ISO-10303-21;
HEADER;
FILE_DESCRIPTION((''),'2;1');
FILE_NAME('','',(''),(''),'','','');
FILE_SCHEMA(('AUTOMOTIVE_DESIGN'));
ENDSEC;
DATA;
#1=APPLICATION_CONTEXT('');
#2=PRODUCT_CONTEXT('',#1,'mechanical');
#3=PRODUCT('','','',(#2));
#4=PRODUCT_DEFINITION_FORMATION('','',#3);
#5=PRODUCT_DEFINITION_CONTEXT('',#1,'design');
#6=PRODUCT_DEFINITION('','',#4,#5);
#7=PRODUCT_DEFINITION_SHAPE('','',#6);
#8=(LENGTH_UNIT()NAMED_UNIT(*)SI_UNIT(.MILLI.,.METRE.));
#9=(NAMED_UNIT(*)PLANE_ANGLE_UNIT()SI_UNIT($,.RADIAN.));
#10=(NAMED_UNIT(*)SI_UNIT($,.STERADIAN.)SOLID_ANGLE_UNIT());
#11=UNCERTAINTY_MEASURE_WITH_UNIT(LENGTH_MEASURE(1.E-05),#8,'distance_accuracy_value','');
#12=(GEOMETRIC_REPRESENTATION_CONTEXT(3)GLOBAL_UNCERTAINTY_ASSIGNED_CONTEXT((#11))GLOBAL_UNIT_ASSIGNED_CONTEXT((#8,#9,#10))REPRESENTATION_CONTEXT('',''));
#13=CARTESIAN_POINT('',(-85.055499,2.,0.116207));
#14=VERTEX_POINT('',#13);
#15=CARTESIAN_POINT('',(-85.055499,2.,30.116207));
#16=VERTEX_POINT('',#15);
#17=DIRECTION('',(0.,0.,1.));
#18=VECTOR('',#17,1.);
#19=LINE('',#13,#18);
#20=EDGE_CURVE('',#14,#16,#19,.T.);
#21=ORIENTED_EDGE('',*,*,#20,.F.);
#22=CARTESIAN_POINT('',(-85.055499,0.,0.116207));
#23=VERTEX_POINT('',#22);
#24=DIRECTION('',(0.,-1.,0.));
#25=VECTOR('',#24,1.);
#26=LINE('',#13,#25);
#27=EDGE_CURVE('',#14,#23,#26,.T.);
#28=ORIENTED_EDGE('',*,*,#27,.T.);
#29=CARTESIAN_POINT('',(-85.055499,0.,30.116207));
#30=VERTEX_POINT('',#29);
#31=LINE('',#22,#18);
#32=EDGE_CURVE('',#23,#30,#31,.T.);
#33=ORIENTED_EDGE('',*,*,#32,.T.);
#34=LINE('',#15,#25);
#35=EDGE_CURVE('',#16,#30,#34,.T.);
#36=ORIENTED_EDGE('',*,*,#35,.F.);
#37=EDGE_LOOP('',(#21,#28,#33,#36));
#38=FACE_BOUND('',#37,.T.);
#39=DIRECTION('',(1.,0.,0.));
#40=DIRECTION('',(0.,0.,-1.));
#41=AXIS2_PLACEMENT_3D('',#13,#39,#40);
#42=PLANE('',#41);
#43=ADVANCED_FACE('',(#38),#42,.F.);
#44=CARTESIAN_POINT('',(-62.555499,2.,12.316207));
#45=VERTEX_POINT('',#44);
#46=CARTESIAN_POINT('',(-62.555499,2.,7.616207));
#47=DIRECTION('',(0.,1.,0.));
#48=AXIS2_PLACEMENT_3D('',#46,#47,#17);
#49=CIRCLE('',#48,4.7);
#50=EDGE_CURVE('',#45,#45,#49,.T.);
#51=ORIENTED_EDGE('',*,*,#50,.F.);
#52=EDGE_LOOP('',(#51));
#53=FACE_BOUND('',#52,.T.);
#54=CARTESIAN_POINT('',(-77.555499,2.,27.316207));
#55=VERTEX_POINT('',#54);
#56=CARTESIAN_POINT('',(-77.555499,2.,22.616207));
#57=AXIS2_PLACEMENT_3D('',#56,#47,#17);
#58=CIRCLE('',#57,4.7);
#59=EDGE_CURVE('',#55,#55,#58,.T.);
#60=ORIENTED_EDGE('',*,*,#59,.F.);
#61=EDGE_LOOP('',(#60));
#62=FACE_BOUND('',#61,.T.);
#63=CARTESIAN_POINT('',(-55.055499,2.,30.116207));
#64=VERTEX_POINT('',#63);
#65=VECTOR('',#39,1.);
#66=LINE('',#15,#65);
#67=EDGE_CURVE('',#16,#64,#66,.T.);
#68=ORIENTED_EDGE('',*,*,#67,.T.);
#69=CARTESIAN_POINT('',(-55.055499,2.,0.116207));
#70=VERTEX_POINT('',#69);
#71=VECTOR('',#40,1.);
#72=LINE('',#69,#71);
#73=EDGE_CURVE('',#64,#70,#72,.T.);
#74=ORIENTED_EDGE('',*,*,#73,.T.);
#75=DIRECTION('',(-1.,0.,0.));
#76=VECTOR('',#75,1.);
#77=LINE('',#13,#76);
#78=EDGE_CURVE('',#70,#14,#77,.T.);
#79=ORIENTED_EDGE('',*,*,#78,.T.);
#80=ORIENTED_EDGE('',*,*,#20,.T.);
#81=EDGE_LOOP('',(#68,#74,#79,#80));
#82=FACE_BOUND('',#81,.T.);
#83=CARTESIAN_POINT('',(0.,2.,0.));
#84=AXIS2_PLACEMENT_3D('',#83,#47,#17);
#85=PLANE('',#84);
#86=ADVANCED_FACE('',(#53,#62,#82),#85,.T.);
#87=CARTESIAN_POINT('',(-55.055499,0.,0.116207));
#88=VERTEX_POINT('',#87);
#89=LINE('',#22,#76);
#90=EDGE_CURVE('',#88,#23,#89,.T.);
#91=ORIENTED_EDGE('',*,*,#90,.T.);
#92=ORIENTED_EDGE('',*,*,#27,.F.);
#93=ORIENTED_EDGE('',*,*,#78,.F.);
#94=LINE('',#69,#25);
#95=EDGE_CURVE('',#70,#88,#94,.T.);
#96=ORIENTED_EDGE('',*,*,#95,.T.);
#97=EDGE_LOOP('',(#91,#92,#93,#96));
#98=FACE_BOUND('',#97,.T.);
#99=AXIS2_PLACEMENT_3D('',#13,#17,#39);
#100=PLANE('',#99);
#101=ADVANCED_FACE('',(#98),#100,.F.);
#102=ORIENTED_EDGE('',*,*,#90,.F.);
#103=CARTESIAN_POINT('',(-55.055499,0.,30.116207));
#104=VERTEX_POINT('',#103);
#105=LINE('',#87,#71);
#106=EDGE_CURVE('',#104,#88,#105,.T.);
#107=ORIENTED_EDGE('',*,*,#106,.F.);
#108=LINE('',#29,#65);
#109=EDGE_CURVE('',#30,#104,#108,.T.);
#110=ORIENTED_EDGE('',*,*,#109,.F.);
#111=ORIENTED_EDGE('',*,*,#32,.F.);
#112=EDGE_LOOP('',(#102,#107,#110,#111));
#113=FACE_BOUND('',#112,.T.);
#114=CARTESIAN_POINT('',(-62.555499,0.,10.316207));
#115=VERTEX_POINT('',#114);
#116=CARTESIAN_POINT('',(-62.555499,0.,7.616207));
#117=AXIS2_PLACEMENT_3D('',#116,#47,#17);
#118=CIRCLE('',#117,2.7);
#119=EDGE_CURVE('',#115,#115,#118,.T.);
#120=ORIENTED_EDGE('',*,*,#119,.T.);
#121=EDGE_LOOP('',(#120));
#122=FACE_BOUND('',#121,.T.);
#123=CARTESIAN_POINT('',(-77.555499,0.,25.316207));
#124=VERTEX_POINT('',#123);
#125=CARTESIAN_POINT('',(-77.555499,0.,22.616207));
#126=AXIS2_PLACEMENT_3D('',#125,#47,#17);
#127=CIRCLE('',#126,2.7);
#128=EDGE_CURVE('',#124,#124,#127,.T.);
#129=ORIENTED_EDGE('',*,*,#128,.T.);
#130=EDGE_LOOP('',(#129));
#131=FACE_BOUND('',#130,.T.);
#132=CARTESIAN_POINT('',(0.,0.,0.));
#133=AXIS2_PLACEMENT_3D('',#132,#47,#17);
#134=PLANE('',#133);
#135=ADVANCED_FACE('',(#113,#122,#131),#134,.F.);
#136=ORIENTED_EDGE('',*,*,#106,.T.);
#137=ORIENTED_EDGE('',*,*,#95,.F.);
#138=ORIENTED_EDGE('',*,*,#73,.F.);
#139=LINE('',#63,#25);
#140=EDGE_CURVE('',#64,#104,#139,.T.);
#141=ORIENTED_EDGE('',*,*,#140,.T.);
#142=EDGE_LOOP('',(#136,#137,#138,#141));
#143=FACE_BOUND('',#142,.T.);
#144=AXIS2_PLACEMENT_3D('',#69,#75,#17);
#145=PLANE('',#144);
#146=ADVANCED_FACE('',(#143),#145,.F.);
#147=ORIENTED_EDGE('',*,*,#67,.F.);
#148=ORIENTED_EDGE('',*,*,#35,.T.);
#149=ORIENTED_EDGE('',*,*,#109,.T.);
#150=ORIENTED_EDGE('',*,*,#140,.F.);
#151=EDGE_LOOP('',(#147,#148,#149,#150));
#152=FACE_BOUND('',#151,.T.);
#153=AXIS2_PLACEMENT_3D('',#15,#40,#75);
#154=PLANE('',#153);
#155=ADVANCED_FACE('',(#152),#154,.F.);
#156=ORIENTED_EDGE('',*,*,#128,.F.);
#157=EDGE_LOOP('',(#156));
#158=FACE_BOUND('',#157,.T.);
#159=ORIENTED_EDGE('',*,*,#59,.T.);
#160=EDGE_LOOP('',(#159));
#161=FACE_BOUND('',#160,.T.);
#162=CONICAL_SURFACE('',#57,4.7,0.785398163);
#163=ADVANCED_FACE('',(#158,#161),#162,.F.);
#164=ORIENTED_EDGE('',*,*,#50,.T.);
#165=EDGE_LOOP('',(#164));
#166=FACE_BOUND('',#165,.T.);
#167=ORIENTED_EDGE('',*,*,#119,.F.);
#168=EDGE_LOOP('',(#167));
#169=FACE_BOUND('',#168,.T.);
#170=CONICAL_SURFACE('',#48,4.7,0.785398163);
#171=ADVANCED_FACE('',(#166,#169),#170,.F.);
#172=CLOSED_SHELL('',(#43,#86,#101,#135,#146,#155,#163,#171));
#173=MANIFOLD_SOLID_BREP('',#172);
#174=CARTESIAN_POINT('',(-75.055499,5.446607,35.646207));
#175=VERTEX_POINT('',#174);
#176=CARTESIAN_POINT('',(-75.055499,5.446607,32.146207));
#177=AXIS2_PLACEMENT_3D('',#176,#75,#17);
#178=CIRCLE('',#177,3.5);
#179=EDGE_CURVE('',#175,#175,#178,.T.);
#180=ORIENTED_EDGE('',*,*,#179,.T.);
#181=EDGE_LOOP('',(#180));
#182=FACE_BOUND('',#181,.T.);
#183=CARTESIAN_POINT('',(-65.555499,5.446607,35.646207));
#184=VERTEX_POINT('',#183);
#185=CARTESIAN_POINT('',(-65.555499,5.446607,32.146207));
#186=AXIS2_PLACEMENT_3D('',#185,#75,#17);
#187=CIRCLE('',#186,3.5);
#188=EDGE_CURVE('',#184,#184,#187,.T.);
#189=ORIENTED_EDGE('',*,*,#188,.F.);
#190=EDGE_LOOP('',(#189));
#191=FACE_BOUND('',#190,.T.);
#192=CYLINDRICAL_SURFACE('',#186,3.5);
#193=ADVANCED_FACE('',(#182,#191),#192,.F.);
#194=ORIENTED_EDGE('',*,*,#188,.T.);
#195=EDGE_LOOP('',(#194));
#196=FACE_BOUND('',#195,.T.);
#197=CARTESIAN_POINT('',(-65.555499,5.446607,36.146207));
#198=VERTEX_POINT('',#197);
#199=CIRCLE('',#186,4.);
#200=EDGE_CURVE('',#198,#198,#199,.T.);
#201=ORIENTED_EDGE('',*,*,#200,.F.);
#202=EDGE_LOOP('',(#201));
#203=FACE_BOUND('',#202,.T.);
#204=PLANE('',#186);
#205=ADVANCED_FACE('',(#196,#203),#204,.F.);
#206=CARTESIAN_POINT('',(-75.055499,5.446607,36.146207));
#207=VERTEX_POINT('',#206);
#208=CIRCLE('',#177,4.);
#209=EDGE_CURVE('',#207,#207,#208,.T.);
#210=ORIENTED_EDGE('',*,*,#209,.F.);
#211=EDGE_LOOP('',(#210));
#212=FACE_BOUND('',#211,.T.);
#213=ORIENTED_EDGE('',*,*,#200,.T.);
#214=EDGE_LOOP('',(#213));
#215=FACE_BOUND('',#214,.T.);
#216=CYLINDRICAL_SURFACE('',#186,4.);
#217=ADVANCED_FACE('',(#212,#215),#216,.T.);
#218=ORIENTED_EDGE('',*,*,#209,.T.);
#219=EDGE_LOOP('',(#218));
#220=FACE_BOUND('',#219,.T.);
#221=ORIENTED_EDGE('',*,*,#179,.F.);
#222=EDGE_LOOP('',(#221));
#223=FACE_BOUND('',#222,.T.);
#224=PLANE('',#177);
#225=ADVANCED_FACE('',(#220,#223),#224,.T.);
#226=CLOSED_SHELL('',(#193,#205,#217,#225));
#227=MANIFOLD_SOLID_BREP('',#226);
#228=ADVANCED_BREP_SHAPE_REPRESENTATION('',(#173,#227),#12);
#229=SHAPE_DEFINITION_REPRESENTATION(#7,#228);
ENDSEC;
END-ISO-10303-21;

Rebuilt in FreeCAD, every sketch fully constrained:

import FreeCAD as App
import Part
import Sketcher
from FreeCAD import Vector
Q = App.Units.Quantity

doc = App.newDocument("Part")
body = doc.addObject("PartDesign::Body", "Body")

sketch1 = body.newObject("Sketcher::SketchObject", "Sketch")
sketch1.AttachmentSupport = (doc.getObject("XZ_Plane"), [""])
sketch1.MapMode = "FlatFace"
sketch1.addGeometry(Part.LineSegment(Vector(-85.055499, 0.116207, 0), Vector(-85.055499, 30.116207, 0)), False)
sketch1.addGeometry(Part.LineSegment(Vector(-85.055499, 30.116207, 0), Vector(-55.055499, 30.116207, 0)), False)
sketch1.addGeometry(Part.LineSegment(Vector(-55.055499, 30.116207, 0), Vector(-55.055499, 0.116207, 0)), False)
sketch1.addGeometry(Part.LineSegment(Vector(-55.055499, 0.116207, 0), Vector(-85.055499, 0.116207, 0)), False)
sketch1.addConstraint(Sketcher.Constraint("Coincident", 0, 2, 1, 1))
sketch1.addConstraint(Sketcher.Constraint("Coincident", 1, 2, 2, 1))
sketch1.addConstraint(Sketcher.Constraint("Coincident", 2, 2, 3, 1))
sketch1.addConstraint(Sketcher.Constraint("Coincident", 3, 2, 0, 1))
sketch1.addConstraint(Sketcher.Constraint("Vertical", 0))
sketch1.addConstraint(Sketcher.Constraint("Horizontal", 1))
sketch1.addConstraint(Sketcher.Constraint("Vertical", 2))
sketch1.addConstraint(Sketcher.Constraint("Horizontal", 3))
sketch1.addConstraint(Sketcher.Constraint("Equal", 3, 0))
sketch1.addConstraint(Sketcher.Constraint("DistanceX", 1, 1, 1, 2, Q("30 mm")))
sketch1.addConstraint(Sketcher.Constraint("DistanceX", 0, 2, -1, 1, Q("85.055499 mm")))
sketch1.addConstraint(Sketcher.Constraint("DistanceY", -1, 1, 0, 2, Q("30.116207 mm")))
pad1 = body.newObject("PartDesign::Pad", "Pad")
pad1.Profile = sketch1
pad1.Length = 2
pad1.Reversed = True

sketch2 = body.newObject("Sketcher::SketchObject", "Sketch001")
sketch2.AttachmentSupport = (doc.getObject("YZ_Plane"), [""])
sketch2.MapMode = "FlatFace"
sketch2.AttachmentOffset = App.Placement(Vector(0, 0, -77.555499), App.Rotation())
sketch2.addGeometry(Part.LineSegment(Vector(-20.351936, 22.616207, 0), Vector(2, 22.616207, 0)), False)
sketch2.addGeometry(Part.LineSegment(Vector(2, 22.616207, 0), Vector(2, 27.316207, 0)), False)
sketch2.addGeometry(Part.LineSegment(Vector(2, 27.316207, 0), Vector(-0.45, 24.866207, 0)), False)
sketch2.addGeometry(Part.LineSegment(Vector(-0.45, 24.866207, 0), Vector(-19, 24.866207, 0)), False)
sketch2.addGeometry(Part.LineSegment(Vector(-19, 24.866207, 0), Vector(-20.351936, 22.616207, 0)), False)
sketch2.addGeometry(Part.LineSegment(Vector(2, 22.616207, 0), Vector(-20.351936, 22.616207, 0)), True)
sketch2.addConstraint(Sketcher.Constraint("Coincident", 0, 2, 1, 1))
sketch2.addConstraint(Sketcher.Constraint("Coincident", 1, 2, 2, 1))
sketch2.addConstraint(Sketcher.Constraint("Coincident", 2, 2, 3, 1))
sketch2.addConstraint(Sketcher.Constraint("Coincident", 3, 2, 4, 1))
sketch2.addConstraint(Sketcher.Constraint("Coincident", 4, 2, 0, 1))
sketch2.addConstraint(Sketcher.Constraint("Horizontal", 0))
sketch2.addConstraint(Sketcher.Constraint("Vertical", 1))
sketch2.addConstraint(Sketcher.Constraint("Horizontal", 3))
sketch2.addConstraint(Sketcher.Constraint("Horizontal", 5))
sketch2.addConstraint(Sketcher.Constraint("Coincident", 5, 1, 0, 2))
sketch2.addConstraint(Sketcher.Constraint("Equal", 0, 5))
sketch2.addConstraint(Sketcher.Constraint("Angle", 2, Q("-135 deg")))
sketch2.addConstraint(Sketcher.Constraint("Angle", 4, Q("-121 deg")))
sketch2.addConstraint(Sketcher.Constraint("DistanceY", 1, 1, 1, 2, Q("4.7 mm")))
sketch2.addConstraint(Sketcher.Constraint("DistanceX", -1, 1, 0, 2, Q("2 mm")))
sketch2.addConstraint(Sketcher.Constraint("DistanceX", 3, 2, -1, 1, Q("19 mm")))
sketch2.addConstraint(Sketcher.Constraint("DistanceX", 3, 2, 3, 1, Q("18.55 mm")))
sketch2.addConstraint(Sketcher.Constraint("DistanceY", -1, 1, 0, 2, Q("22.616207 mm")))
groove = body.newObject("PartDesign::Groove", "Groove")
groove.Profile = sketch2
groove.ReferenceAxis = (sketch2, ["Axis0"])
groove.Angle = 360
doc.recompute()

datumline = body.newObject("PartDesign::Line", "DatumLine")
datumline.Placement = App.Placement(Vector(0, 0, 0), App.Rotation(Vector(0, 0, 1), Vector(0.707106781, 0, -0.707106781)))
linearpattern = body.newObject("PartDesign::LinearPattern", "LinearPattern")
linearpattern.Originals = [groove]
linearpattern.Direction = (datumline, [""])
linearpattern.Mode = "offset"
linearpattern.Offset = 21.213203
linearpattern.Occurrences = 2
body.Tip = linearpattern
body2 = doc.addObject("PartDesign::Body", "Body001")

sketch3 = body2.newObject("Sketcher::SketchObject", "Sketch002")
sketch3.AttachmentSupport = (doc.getObject("YZ_Plane001"), [""])
sketch3.MapMode = "FlatFace"
sketch3.AttachmentOffset = App.Placement(Vector(0, 0, -75.055499), App.Rotation())
sketch3.addGeometry(Part.Circle(Vector(5.446607, 32.146207, 0), Vector(0, 0, 1), 4), False)
sketch3.addGeometry(Part.Circle(Vector(5.446607, 32.146207, 0), Vector(0, 0, 1), 3.5), False)
sketch3.addConstraint(Sketcher.Constraint("Coincident", 1, 3, 0, 3))
sketch3.addConstraint(Sketcher.Constraint("Diameter", 0, Q("8 mm")))
sketch3.addConstraint(Sketcher.Constraint("Diameter", 1, Q("7 mm")))
sketch3.addConstraint(Sketcher.Constraint("DistanceX", -1, 1, 0, 3, Q("5.446607 mm")))
sketch3.addConstraint(Sketcher.Constraint("DistanceY", -1, 1, 0, 3, Q("32.146207 mm")))
pad2 = body2.newObject("PartDesign::Pad", "Pad001")
pad2.Profile = sketch3
pad2.Length = 9.5

doc.recompute()
